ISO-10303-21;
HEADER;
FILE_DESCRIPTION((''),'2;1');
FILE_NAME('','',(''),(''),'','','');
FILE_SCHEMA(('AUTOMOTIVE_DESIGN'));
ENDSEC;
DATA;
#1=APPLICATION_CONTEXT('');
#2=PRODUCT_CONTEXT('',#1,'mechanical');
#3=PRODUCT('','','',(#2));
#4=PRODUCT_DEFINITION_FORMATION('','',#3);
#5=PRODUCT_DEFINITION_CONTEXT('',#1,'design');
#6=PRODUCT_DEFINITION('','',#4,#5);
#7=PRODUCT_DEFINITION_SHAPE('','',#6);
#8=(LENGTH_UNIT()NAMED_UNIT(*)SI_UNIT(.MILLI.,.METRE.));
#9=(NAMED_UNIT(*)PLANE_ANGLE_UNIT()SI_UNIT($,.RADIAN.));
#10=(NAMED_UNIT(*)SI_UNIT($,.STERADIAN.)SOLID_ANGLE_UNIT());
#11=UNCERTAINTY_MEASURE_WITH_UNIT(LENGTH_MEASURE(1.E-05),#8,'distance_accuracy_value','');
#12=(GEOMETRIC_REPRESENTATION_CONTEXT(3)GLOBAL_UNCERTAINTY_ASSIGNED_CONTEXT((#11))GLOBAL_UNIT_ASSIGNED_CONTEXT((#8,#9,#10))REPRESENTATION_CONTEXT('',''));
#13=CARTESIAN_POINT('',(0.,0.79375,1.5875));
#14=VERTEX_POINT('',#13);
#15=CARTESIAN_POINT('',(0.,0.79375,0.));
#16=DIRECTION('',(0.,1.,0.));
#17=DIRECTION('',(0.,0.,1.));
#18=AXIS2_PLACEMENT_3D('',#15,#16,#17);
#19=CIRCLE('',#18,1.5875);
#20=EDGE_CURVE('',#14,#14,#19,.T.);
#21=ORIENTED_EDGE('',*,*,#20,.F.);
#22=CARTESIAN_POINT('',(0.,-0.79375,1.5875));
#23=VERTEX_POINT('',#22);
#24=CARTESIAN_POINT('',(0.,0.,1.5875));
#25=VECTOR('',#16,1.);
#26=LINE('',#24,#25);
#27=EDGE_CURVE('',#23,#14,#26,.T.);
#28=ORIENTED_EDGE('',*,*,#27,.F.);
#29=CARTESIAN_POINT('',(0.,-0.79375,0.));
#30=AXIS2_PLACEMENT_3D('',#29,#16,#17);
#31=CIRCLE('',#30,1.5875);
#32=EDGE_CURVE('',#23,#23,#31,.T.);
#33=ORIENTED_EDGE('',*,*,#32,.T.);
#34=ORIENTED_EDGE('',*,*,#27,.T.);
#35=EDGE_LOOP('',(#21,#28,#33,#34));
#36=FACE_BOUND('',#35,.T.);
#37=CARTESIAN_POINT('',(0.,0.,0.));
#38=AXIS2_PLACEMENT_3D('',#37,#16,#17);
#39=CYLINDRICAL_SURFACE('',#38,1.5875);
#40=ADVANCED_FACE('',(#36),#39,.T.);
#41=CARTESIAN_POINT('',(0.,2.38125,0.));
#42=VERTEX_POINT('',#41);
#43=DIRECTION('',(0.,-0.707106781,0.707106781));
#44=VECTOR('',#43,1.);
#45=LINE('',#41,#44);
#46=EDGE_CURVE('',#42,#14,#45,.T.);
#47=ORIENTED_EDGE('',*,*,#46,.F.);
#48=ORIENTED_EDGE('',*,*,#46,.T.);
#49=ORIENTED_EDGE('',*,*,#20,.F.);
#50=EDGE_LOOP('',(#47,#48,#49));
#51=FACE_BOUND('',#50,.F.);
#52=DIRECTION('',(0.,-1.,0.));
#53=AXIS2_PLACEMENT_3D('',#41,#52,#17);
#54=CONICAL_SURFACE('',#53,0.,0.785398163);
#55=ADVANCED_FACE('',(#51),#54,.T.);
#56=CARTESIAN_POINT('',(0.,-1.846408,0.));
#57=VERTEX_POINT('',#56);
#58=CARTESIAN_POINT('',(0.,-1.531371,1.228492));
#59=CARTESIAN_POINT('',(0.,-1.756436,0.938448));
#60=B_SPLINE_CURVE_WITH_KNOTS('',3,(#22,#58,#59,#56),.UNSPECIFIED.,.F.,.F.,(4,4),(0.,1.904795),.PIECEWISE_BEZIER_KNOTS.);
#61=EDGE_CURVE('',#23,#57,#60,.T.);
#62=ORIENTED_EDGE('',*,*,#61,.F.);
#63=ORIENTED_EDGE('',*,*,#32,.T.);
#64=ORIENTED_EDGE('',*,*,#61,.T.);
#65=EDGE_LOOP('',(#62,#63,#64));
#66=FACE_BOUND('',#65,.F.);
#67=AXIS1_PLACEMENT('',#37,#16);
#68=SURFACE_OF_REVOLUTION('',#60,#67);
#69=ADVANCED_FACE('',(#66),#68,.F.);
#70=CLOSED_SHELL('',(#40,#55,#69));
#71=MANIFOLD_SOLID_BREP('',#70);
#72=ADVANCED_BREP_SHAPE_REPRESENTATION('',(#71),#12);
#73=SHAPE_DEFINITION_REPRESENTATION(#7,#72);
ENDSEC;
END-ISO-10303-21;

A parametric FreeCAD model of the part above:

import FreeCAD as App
import Part
import Sketcher
from FreeCAD import Vector
Q = App.Units.Quantity

doc = App.newDocument("Part")
params = doc.addObject("Spreadsheet::Sheet", "Params")
for row, (alias, value) in enumerate([
    ("sketch1_width", "0.0625 in"),
    ("revolution_angle", "360 deg"),
], start=1):
    params.set(f"A{row}", alias)
    params.set(f"B{row}", "=" + value)
    params.setAlias(f"B{row}", alias)

body = doc.addObject("PartDesign::Body", "Body")

sketch1 = body.newObject("Sketcher::SketchObject", "Sketch")
sketch1.AttachmentSupport = (doc.getObject("YZ_Plane"), [""])
sketch1.MapMode = "FlatFace"
sketch1.addGeometry([
    Part.BSplineCurve([Vector(-0.79375, 1.5875, 0), Vector(-1.531371, 1.228492, 0), Vector(-1.756436, 0.938448, 0), Vector(-1.846408, 0, 0)], [4, 4], [0, 1.904795], False, 3, [1, 1, 1, 1], False),
    Part.LineSegment(Vector(-1.846408, 0, 0), Vector(2.38125, 0, 0)),
    Part.LineSegment(Vector(2.38125, 0, 0), Vector(0.79375, 1.5875, 0)),
    Part.LineSegment(Vector(0.79375, 1.5875, 0), Vector(-0.79375, 1.5875, 0)),
], False)
sketch1.addConstraint([
    Sketcher.Constraint("Block", 0),
    Sketcher.Constraint("Coincident", 0, 2, 1, 1),
    Sketcher.Constraint("Coincident", 1, 2, 2, 1),
    Sketcher.Constraint("Coincident", 2, 2, 3, 1),
    Sketcher.Constraint("Coincident", 3, 2, 0, 1),
    Sketcher.Constraint("Horizontal", 1),
    Sketcher.Constraint("Horizontal", 3),
    Sketcher.Constraint("Angle", 2, Q("135 deg")),
    Sketcher.Constraint("DistanceX", 3, 2, 3, 1, Q("0.0625 in")),
])
sketch1.setExpression("Constraints[8]", "Params.sketch1_width")
revolution = body.newObject("PartDesign::Revolution", "Revolution")
revolution.Profile = sketch1
revolution.ReferenceAxis = (sketch1, ["H_Axis"])
revolution.setExpression("Angle", "Params.revolution_angle")

doc.recompute()
